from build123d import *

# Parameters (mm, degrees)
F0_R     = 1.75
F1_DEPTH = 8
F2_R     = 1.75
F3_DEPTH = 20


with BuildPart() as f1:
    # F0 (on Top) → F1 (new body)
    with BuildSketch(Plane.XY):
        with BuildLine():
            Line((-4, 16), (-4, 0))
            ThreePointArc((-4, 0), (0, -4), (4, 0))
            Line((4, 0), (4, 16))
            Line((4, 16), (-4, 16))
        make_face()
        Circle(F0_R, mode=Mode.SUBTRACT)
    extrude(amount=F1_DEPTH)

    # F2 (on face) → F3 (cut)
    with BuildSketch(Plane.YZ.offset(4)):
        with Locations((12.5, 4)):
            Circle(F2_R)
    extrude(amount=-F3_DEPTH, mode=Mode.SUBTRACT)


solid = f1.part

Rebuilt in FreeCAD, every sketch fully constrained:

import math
import FreeCAD as App
import Part
import Sketcher

doc = App.newDocument("Part")
params = doc.addObject("Spreadsheet::Sheet", "Params")
for row, (alias, value) in enumerate([
    ("sketch1_radius", "4 mm"),
    ("sketch1_diameter", "3.5 mm"),
    ("sketch1_height", "16 mm"),
    ("pad1_length", "8 mm"),
    ("sketch2_diameter", "3.5 mm"),
    ("pocket1_length", "20 mm"),
], start=1):
    params.set(f"A{row}", alias)
    params.set(f"B{row}", "=" + value)
    params.setAlias(f"B{row}", alias)

body = doc.addObject("PartDesign::Body", "Body")

# Sketch on XY plane
sketch1 = body.newObject("Sketcher::SketchObject", "Sketch")
sketch1.AttachmentSupport = (doc.getObject("XY_Plane"), [""])
sketch1.MapMode = "FlatFace"
sketch1.addGeometry([
    Part.LineSegment(App.Vector(-4, 16, 0), App.Vector(-4, 0, 0)),  # 0
    Part.ArcOfCircle(Part.Circle(App.Vector(0, 0, 0), App.Vector(0, 0, 1), 4), math.radians(180), math.radians(360)),  # 1
    Part.LineSegment(App.Vector(4, 0, 0), App.Vector(4, 16, 0)),  # 2
    Part.LineSegment(App.Vector(4, 16, 0), App.Vector(-4, 16, 0)),  # 3
    Part.Circle(App.Vector(0, 0, 0), App.Vector(0, 0, 1), 1.8),  # 4
], False)
sketch1.addConstraint([
    Sketcher.Constraint("Tangent", 0, 2, 1, 1),
    Sketcher.Constraint("Tangent", 1, 2, 2, 1),
    Sketcher.Constraint("Coincident", 2, 2, 3, 1),
    Sketcher.Constraint("Coincident", 3, 2, 0, 1),
    Sketcher.Constraint("Vertical", 0),
    Sketcher.Constraint("Vertical", 2),
    Sketcher.Constraint("Horizontal", 3),
    Sketcher.Constraint("Coincident", 1, 3, -1, 1),
    Sketcher.Constraint("Coincident", 4, 3, -1, 1),
    Sketcher.Constraint("Radius", 1, 4.0),
    Sketcher.Constraint("Diameter", 4, 3.5),
    Sketcher.Constraint("DistanceY", 0, 2, 0, 1, 16.0),
])
sketch1.setExpression("Constraints[9]", "Params.sketch1_radius")
sketch1.setExpression("Constraints[10]", "Params.sketch1_diameter")
sketch1.setExpression("Constraints[11]", "Params.sketch1_height")
pad1 = body.newObject("PartDesign::Pad", "Pad")
pad1.Profile = sketch1
pad1.setExpression("Length", "Params.pad1_length")

# Sketch on YZ plane
sketch2 = body.newObject("Sketcher::SketchObject", "Sketch001")
sketch2.AttachmentSupport = (doc.getObject("YZ_Plane"), [""])
sketch2.MapMode = "FlatFace"
sketch2.AttachmentOffset = App.Placement(App.Vector(0, 0, 4), App.Rotation())
sketch2.addGeometry(Part.Circle(App.Vector(12.5, 4, 0), App.Vector(0, 0, 1), 1.8), False)
sketch2.addConstraint([
    Sketcher.Constraint("Diameter", 0, 3.5),
    Sketcher.Constraint("DistanceY", -1, 1, 0, 3, 4.0),
    Sketcher.Constraint("DistanceX", -1, 1, 0, 3, 12.5),
])
sketch2.setExpression("Constraints[0]", "Params.sketch2_diameter")
pocket1 = body.newObject("PartDesign::Pocket", "Pocket")
pocket1.Profile = sketch2
pocket1.setExpression("Length", "Params.pocket1_length")

doc.recompute()
